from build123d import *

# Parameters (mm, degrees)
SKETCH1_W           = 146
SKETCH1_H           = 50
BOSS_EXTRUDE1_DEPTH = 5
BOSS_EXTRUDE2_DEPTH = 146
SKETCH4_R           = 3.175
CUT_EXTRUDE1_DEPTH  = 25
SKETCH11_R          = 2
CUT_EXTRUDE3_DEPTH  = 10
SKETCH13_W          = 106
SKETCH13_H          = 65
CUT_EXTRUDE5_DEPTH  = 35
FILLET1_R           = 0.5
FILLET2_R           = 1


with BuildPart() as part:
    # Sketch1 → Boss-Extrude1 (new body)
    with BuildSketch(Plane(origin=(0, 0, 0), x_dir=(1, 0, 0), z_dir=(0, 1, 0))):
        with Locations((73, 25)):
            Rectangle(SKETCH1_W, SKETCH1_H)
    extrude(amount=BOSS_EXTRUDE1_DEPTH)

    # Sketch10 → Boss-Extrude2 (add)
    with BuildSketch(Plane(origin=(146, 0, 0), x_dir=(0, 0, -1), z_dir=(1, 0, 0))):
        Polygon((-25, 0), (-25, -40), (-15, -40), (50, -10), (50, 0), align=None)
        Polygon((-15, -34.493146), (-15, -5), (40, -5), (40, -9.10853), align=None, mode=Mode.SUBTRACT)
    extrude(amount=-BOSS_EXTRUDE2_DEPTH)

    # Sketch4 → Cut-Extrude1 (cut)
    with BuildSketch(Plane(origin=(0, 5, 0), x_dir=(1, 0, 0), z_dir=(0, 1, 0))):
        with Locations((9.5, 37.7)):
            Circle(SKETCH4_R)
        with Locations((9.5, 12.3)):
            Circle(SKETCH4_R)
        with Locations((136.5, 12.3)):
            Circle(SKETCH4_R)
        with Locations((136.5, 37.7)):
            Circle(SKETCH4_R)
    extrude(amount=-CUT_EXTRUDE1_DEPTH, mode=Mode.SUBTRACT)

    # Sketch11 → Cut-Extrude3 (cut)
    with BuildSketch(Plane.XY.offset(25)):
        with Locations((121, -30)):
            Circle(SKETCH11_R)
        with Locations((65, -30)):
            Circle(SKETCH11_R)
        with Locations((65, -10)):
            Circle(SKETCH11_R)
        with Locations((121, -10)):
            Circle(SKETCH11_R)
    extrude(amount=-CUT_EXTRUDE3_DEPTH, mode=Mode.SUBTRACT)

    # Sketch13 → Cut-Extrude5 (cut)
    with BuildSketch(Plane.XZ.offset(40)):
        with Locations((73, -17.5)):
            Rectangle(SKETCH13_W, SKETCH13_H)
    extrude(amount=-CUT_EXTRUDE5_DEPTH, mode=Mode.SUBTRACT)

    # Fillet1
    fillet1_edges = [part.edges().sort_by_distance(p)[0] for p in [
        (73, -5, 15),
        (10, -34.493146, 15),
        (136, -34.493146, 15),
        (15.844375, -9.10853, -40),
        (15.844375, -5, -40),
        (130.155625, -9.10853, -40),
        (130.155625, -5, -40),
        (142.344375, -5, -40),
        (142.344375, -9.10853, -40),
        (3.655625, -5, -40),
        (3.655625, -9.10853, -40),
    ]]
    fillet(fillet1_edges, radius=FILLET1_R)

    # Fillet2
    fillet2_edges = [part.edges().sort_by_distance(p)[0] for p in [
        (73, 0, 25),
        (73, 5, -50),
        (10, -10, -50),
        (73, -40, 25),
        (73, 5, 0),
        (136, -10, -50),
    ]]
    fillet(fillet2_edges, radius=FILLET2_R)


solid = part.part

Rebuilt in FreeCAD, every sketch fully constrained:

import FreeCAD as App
import Part
import Sketcher
from FreeCAD import Vector


def edges_at(feature, points):
    """Names of the edges that pass closest to the given points."""
    edges = feature.Shape.Edges
    near = lambda p: min(range(len(edges)), key=lambda i: edges[i].distToShape(Part.Vertex(*p))[0])
    return sorted({f"Edge{near(p) + 1}" for p in points})


def add_polygon(sketch, points):
    """Adds a closed chain of lines whose ends are joined by coincident constraints."""
    first, n = sketch.GeometryCount, len(points)
    for a, b in zip(points, points[1:] + points[:1]):
        sketch.addGeometry(Part.LineSegment(App.Vector(*a, 0), App.Vector(*b, 0)), False)
    for i in range(n):
        sketch.addConstraint(Sketcher.Constraint("Coincident", first + i, 2, first + (i + 1) % n, 1))

doc = App.newDocument("Part")
body = doc.addObject("PartDesign::Body", "Body")

# Sketch on XZ plane
sketch1 = body.newObject("Sketcher::SketchObject", "Sketch")
sketch1.AttachmentSupport = (doc.getObject("XZ_Plane"), [""])
sketch1.MapMode = "FlatFace"
add_polygon(sketch1, [(0, -50), (0, 0), (146, 0), (146, -50)])  # lines 0-3
sketch1.addConstraint([
    Sketcher.Constraint("Vertical", 0),
    Sketcher.Constraint("Horizontal", 1),
    Sketcher.Constraint("Vertical", 2),
    Sketcher.Constraint("Horizontal", 3),
    Sketcher.Constraint("Coincident", 0, 2, -1, 1),
    Sketcher.Constraint("DistanceX", 1, 1, 1, 2, 146.0),
    Sketcher.Constraint("DistanceY", 0, 1, 0, 2, 50.0),
])
pad1 = body.newObject("PartDesign::Pad", "Pad")
pad1.Profile = sketch1
pad1.Length = 5
pad1.Reversed = True

# Sketch on YZ plane
sketch2 = body.newObject("Sketcher::SketchObject", "Sketch001")
sketch2.AttachmentSupport = (doc.getObject("YZ_Plane"), [""])
sketch2.MapMode = "FlatFace"
sketch2.AttachmentOffset = App.Placement(Vector(0, 0, 146), App.Rotation())
add_polygon(sketch2, [(0, 25), (-40, 25), (-40, 15), (-10, -50), (0, -50)])  # lines 0-4
add_polygon(sketch2, [(-9.1, -40), (-34.5, 15), (-5, 15), (-5, -40)])  # lines 5-8
sketch2.addConstraint([
    Sketcher.Constraint("Horizontal", 0),
    Sketcher.Constraint("Vertical", 1),
    Sketcher.Constraint("Horizontal", 3),
    Sketcher.Constraint("Vertical", 4),
    Sketcher.Constraint("Horizontal", 6),
    Sketcher.Constraint("Vertical", 7),
    Sketcher.Constraint("Horizontal", 8),
    Sketcher.Constraint("PointOnObject", 3, 2, -2),
    Sketcher.Constraint("Parallel", 2, 5),
    Sketcher.Constraint("Horizontal", 1, 2, 5, 2),
    Sketcher.Constraint("Equal", 3, 1),
    Sketcher.Constraint("DistanceX", 0, 2, 0, 1, 40.0),
    Sketcher.Constraint("DistanceX", 3, 1, 3, 2, 10.0),
    Sketcher.Constraint("DistanceY", 4, 1, 4, 2, 75.0),
    Sketcher.Constraint("DistanceY", 7, 2, 7, 1, 55.0),
    Sketcher.Constraint("DistanceY", -1, 1, 0, 2, 25.0),
    Sketcher.Constraint("DistanceX", 6, 2, -1, 1, 5.0),
    Sketcher.Constraint("DistanceX", 8, 2, 8, 1, 4.10853),
])
pad2 = body.newObject("PartDesign::Pad", "Pad001")
pad2.Profile = sketch2
pad2.Length = 146
pad2.Reversed = True

# Sketch on XZ plane
sketch3 = body.newObject("Sketcher::SketchObject", "Sketch002")
sketch3.AttachmentSupport = (doc.getObject("XZ_Plane"), [""])
sketch3.MapMode = "FlatFace"
sketch3.AttachmentOffset = App.Placement(Vector(0, 0, -5), App.Rotation())
sketch3.addGeometry([
    Part.Circle(Vector(9.5, -37.7, 0), Vector(0, 0, 1), 3.2),
    Part.Circle(Vector(9.5, -12.3, 0), Vector(0, 0, 1), 3.2),
    Part.Circle(Vector(136.5, -12.3, 0), Vector(0, 0, 1), 3.2),
    Part.Circle(Vector(136.5, -37.7, 0), Vector(0, 0, 1), 3.2),
], False)
sketch3.addConstraint([
    Sketcher.Constraint("Equal", 0, 1),
    Sketcher.Constraint("Equal", 1, 2),
    Sketcher.Constraint("Equal", 2, 3),
    Sketcher.Constraint("Horizontal", 1, 3, 2, 3),
    Sketcher.Constraint("Horizontal", 0, 3, 3, 3),
    Sketcher.Constraint("Vertical", 0, 3, 1, 3),
    Sketcher.Constraint("Vertical", 2, 3, 3, 3),
    Sketcher.Constraint("Diameter", 0, 6.35),
    Sketcher.Constraint("DistanceX", 1, 3, 2, 3, 127.0),
    Sketcher.Constraint("DistanceX", -1, 1, 0, 3, 9.5),
    Sketcher.Constraint("DistanceY", 0, 3, -1, 1, 37.7),
    Sketcher.Constraint("DistanceY", 1, 3, -1, 1, 12.3),
])
pocket1 = body.newObject("PartDesign::Pocket", "Pocket")
pocket1.Profile = sketch3
pocket1.Length = 25
pocket1.Reversed = True

# Sketch on XY plane
sketch4 = body.newObject("Sketcher::SketchObject", "Sketch003")
sketch4.AttachmentSupport = (doc.getObject("XY_Plane"), [""])
sketch4.MapMode = "FlatFace"
sketch4.AttachmentOffset = App.Placement(Vector(0, 0, 25), App.Rotation())
sketch4.addGeometry([
    Part.Circle(Vector(121, -30, 0), Vector(0, 0, 1), 2),
    Part.Circle(Vector(65, -30, 0), Vector(0, 0, 1), 2),
    Part.Circle(Vector(65, -10, 0), Vector(0, 0, 1), 2),
    Part.Circle(Vector(121, -10, 0), Vector(0, 0, 1), 2),
], False)
sketch4.addConstraint([
    Sketcher.Constraint("Equal", 0, 1),
    Sketcher.Constraint("Equal", 1, 2),
    Sketcher.Constraint("Equal", 2, 3),
    Sketcher.Constraint("Horizontal", 0, 3, 1, 3),
    Sketcher.Constraint("Horizontal", 2, 3, 3, 3),
    Sketcher.Constraint("Vertical", 1, 3, 2, 3),
    Sketcher.Constraint("Vertical", 0, 3, 3, 3),
    Sketcher.Constraint("Diameter", 0, 4.0),
    Sketcher.Constraint("DistanceX", -1, 1, 0, 3, 121.0),
    Sketcher.Constraint("DistanceY", 0, 3, -1, 1, 30.0),
    Sketcher.Constraint("DistanceX", -1, 1, 1, 3, 65.0),
    Sketcher.Constraint("DistanceY", 2, 3, -1, 1, 10.0),
])
pocket2 = body.newObject("PartDesign::Pocket", "Pocket001")
pocket2.Profile = sketch4
pocket2.Length = 10

# Sketch on XZ plane
sketch5 = body.newObject("Sketcher::SketchObject", "Sketch004")
sketch5.AttachmentSupport = (doc.getObject("XZ_Plane"), [""])
sketch5.MapMode = "FlatFace"
sketch5.AttachmentOffset = App.Placement(Vector(0, 0, 40), App.Rotation())
add_polygon(sketch5, [(20, 15), (20, -50), (126, -50), (126, 15)])  # lines 0-3
sketch5.addConstraint([
    Sketcher.Constraint("Vertical", 0),
    Sketcher.Constraint("Horizontal", 1),
    Sketcher.Constraint("Vertical", 2),
    Sketcher.Constraint("Horizontal", 3),
    Sketcher.Constraint("DistanceX", 1, 1, 1, 2, 106.0),
    Sketcher.Constraint("DistanceY", 0, 2, 0, 1, 65.0),
    Sketcher.Constraint("DistanceX", -1, 1, 0, 2, 20.0),
    Sketcher.Constraint("DistanceY", 0, 2, -1, 1, 50.0),
])
pocket3 = body.newObject("PartDesign::Pocket", "Pocket002")
pocket3.Profile = sketch5
pocket3.Length = 35
doc.recompute()

fillet = body.newObject("PartDesign::Fillet", "Fillet")
fillet.Base = (pocket3, edges_at(pocket3, [
    (73, -5, 15),
    (10, -34.493, 15),
    (136, -34.493, 15),
    (15.844, -9.109, -40),
    (15.844, -5, -40),
    (130.156, -9.109, -40),
    (130.156, -5, -40),
    (142.344, -5, -40),
    (142.344, -9.109, -40),
    (3.656, -5, -40),
    (3.656, -9.109, -40),
]))
fillet.Radius = 0.5
doc.recompute()

fillet2 = body.newObject("PartDesign::Fillet", "Fillet001")
fillet2.Base = (fillet, edges_at(fillet, [
    (73, 0, 25),
    (73, 5, -50),
    (10, -10, -50),
    (73, -40, 25),
    (73, 5, 0),
    (136, -10, -50),
]))
fillet2.Radius = 1

doc.recompute()
